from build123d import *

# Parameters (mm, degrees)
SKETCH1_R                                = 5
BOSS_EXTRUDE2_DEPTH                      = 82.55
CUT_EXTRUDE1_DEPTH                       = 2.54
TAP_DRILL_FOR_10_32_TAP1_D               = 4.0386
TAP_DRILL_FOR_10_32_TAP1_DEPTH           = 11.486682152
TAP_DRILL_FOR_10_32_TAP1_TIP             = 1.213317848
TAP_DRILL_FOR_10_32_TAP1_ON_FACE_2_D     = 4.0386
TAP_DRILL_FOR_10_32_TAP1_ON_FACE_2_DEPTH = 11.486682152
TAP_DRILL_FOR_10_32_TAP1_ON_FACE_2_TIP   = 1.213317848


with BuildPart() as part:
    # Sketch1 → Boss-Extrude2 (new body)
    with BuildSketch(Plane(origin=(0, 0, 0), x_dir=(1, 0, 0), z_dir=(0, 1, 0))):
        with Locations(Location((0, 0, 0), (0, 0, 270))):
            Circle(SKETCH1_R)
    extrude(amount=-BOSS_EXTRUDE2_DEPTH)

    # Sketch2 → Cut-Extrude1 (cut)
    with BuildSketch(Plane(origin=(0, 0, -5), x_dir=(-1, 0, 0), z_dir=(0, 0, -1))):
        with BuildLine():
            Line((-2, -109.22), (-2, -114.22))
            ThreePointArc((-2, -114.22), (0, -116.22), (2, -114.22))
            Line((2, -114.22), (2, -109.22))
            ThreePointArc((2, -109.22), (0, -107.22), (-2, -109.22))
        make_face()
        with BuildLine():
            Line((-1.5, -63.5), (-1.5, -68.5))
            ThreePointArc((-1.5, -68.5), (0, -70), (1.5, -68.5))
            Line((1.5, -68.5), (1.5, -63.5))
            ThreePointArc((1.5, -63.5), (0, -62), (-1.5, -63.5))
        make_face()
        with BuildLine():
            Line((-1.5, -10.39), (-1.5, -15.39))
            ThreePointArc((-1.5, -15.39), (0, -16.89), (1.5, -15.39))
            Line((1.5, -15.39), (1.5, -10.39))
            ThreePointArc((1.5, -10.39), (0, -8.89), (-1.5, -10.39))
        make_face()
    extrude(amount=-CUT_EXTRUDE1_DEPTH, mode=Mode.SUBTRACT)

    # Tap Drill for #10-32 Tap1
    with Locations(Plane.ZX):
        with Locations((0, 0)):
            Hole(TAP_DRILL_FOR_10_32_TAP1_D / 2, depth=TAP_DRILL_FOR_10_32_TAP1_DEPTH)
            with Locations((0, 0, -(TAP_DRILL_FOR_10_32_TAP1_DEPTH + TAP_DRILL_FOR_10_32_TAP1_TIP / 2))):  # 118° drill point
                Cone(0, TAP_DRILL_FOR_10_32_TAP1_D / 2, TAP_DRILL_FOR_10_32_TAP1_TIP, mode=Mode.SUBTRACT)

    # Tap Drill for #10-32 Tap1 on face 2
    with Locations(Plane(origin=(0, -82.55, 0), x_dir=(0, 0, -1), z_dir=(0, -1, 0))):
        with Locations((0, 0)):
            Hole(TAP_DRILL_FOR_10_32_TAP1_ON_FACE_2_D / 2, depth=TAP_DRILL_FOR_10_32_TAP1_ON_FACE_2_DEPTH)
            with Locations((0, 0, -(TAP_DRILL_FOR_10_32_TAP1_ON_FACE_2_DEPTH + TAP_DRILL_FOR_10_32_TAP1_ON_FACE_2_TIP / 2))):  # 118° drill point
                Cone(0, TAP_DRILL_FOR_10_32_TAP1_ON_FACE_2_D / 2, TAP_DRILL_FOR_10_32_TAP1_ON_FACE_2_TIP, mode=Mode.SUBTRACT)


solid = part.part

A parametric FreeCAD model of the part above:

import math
import FreeCAD as App
import Part
import Sketcher

V = App.Vector
Q = App.Units.Quantity

doc = App.newDocument("Part")
params = doc.addObject("Spreadsheet::Sheet", "Params")
for row, (alias, value) in enumerate([
    ("sketch1_diameter", "10 mm"),
    ("pad1_length", "82.55 mm"),
    ("sketch2_radius", "2 mm"),
    ("sketch2_radius2", "1.5 mm"),
    ("sketch2_height", "5 mm"),
    ("pocket1_length", "2.54 mm"),
    ("hole_diameter", "4.0386 mm"),
    ("hole_depth", "11.486682 mm"),
    ("hole2_diameter", "4.0386 mm"),
    ("hole2_depth", "11.486682 mm"),
], start=1):
    params.set(f"A{row}", alias)
    params.set(f"B{row}", "=" + value)
    params.setAlias(f"B{row}", alias)

body = doc.addObject("PartDesign::Body", "Body")

# Sketch on XZ plane
sketch1 = body.newObject("Sketcher::SketchObject", "Sketch")
sketch1.AttachmentSupport = (doc.getObject("XZ_Plane"), [""])
sketch1.MapMode = "FlatFace"
sketch1.addGeometry(Part.Circle(V(0, 0, 0), V(0, 0, 1), 5), False)
sketch1.addConstraint([
    Sketcher.Constraint("Coincident", 0, 3, -1, 1),
    Sketcher.Constraint("Diameter", 0, Q("10 mm")),
])
sketch1.setExpression("Constraints[1]", "Params.sketch1_diameter")
pad1 = body.newObject("PartDesign::Pad", "Pad")
pad1.Profile = sketch1
pad1.setExpression("Length", "Params.pad1_length")

# Sketch on XY plane
sketch2 = body.newObject("Sketcher::SketchObject", "Sketch001")
sketch2.AttachmentSupport = (doc.getObject("XY_Plane"), [""])
sketch2.MapMode = "FlatFace"
sketch2.AttachmentOffset = App.Placement(V(0, 0, -5), App.Rotation())
sketch2.addGeometry([
    Part.LineSegment(V(2, -109.22, 0), V(2, -114.22, 0)),  # 0
    Part.ArcOfCircle(Part.Circle(V(0, -114.22, 0), V(0, 0, 1), 2), math.radians(180), math.radians(360)),  # 1
    Part.LineSegment(V(-2, -114.22, 0), V(-2, -109.22, 0)),  # 2
    Part.ArcOfCircle(Part.Circle(V(0, -109.22, 0), V(0, 0, 1), 2), math.radians(0), math.radians(180)),  # 3
    Part.LineSegment(V(1.5, -63.5, 0), V(1.5, -68.5, 0)),  # 4
    Part.ArcOfCircle(Part.Circle(V(0, -68.5, 0), V(0, 0, 1), 1.5), math.radians(180), math.radians(360)),  # 5
    Part.LineSegment(V(-1.5, -68.5, 0), V(-1.5, -63.5, 0)),  # 6
    Part.ArcOfCircle(Part.Circle(V(0, -63.5, 0), V(0, 0, 1), 1.5), math.radians(0), math.radians(180)),  # 7
    Part.LineSegment(V(1.5, -10.39, 0), V(1.5, -15.39, 0)),  # 8
    Part.ArcOfCircle(Part.Circle(V(0, -15.39, 0), V(0, 0, 1), 1.5), math.radians(180), math.radians(360)),  # 9
    Part.LineSegment(V(-1.5, -15.39, 0), V(-1.5, -10.39, 0)),  # 10
    Part.ArcOfCircle(Part.Circle(V(0, -10.39, 0), V(0, 0, 1), 1.5), math.radians(0), math.radians(180)),  # 11
], False)
sketch2.addConstraint([
    Sketcher.Constraint("Tangent", 0, 2, 1, 2),
    Sketcher.Constraint("Tangent", 1, 1, 2, 1),
    Sketcher.Constraint("Tangent", 2, 2, 3, 2),
    Sketcher.Constraint("Tangent", 3, 1, 0, 1),
    Sketcher.Constraint("Tangent", 4, 2, 5, 2),
    Sketcher.Constraint("Tangent", 5, 1, 6, 1),
    Sketcher.Constraint("Tangent", 6, 2, 7, 2),
    Sketcher.Constraint("Tangent", 7, 1, 4, 1),
    Sketcher.Constraint("Tangent", 8, 2, 9, 2),
    Sketcher.Constraint("Tangent", 9, 1, 10, 1),
    Sketcher.Constraint("Tangent", 10, 2, 11, 2),
    Sketcher.Constraint("Tangent", 11, 1, 8, 1),
    Sketcher.Constraint("Vertical", 0),
    Sketcher.Constraint("Vertical", 2),
    Sketcher.Constraint("Vertical", 4),
    Sketcher.Constraint("Vertical", 6),
    Sketcher.Constraint("Vertical", 8),
    Sketcher.Constraint("Vertical", 10),
    Sketcher.Constraint("Equal", 7, 9),
    Sketcher.Constraint("PointOnObject", 1, 3, -2),
    Sketcher.Constraint("PointOnObject", 5, 3, -2),
    Sketcher.Constraint("PointOnObject", 9, 3, -2),
    Sketcher.Constraint("Equal", 2, 4),
    Sketcher.Constraint("Equal", 6, 8),
    Sketcher.Constraint("Radius", 1, Q("2 mm")),
    Sketcher.Constraint("Radius", 5, Q("1.5 mm")),
    Sketcher.Constraint("DistanceY", 0, 2, 0, 1, Q("5 mm")),
    Sketcher.Constraint("DistanceY", 5, 3, -1, 1, Q("68.5 mm")),
    Sketcher.Constraint("DistanceY", 1, 3, -1, 1, Q("114.22 mm")),
    Sketcher.Constraint("DistanceY", 9, 3, -1, 1, Q("15.39 mm")),
])
sketch2.setExpression("Constraints[24]", "Params.sketch2_radius")
sketch2.setExpression("Constraints[25]", "Params.sketch2_radius2")
sketch2.setExpression("Constraints[26]", "Params.sketch2_height")
pocket1 = body.newObject("PartDesign::Pocket", "Pocket")
pocket1.Profile = sketch2
pocket1.setExpression("Length", "Params.pocket1_length")
pocket1.Reversed = True

# Sketch on XZ plane
sketch3 = body.newObject("Sketcher::SketchObject", "Sketch002")
sketch3.AttachmentSupport = (doc.getObject("XZ_Plane"), [""])
sketch3.MapMode = "FlatFace"
sketch3.addGeometry(Part.Circle(V(0, 0, 0), V(0, 0, 1), 2.0193), False)
sketch3.addConstraint([
    Sketcher.Constraint("Coincident", 0, 3, -1, 1),
    Sketcher.Constraint("Diameter", 0, Q("4.0386 mm")),
])
doc.recompute()
hole = body.newObject("PartDesign::Hole", "Hole")
hole.Profile = sketch3
hole.ThreadType = "None"
hole.setExpression("Diameter", "Params.hole_diameter")
hole.DepthType = "Dimension"
hole.setExpression("Depth", "Params.hole_depth")
hole.DrillPoint = "Angled"
hole.DrillPointAngle = 118
hole.Reversed = True

# Sketch on XZ plane
sketch4 = body.newObject("Sketcher::SketchObject", "Sketch003")
sketch4.AttachmentSupport = (doc.getObject("XZ_Plane"), [""])
sketch4.MapMode = "FlatFace"
sketch4.AttachmentOffset = App.Placement(V(0, 0, 82.55), App.Rotation())
sketch4.addGeometry(Part.Circle(V(0, 0, 0), V(0, 0, 1), 2.0193), False)
sketch4.addConstraint([
    Sketcher.Constraint("Coincident", 0, 3, -1, 1),
    Sketcher.Constraint("Diameter", 0, Q("4.0386 mm")),
])
doc.recompute()
hole2 = body.newObject("PartDesign::Hole", "Hole001")
hole2.Profile = sketch4
hole2.ThreadType = "None"
hole2.setExpression("Diameter", "Params.hole2_diameter")
hole2.DepthType = "Dimension"
hole2.setExpression("Depth", "Params.hole2_depth")
hole2.DrillPoint = "Angled"
hole2.DrillPointAngle = 118

doc.recompute()
